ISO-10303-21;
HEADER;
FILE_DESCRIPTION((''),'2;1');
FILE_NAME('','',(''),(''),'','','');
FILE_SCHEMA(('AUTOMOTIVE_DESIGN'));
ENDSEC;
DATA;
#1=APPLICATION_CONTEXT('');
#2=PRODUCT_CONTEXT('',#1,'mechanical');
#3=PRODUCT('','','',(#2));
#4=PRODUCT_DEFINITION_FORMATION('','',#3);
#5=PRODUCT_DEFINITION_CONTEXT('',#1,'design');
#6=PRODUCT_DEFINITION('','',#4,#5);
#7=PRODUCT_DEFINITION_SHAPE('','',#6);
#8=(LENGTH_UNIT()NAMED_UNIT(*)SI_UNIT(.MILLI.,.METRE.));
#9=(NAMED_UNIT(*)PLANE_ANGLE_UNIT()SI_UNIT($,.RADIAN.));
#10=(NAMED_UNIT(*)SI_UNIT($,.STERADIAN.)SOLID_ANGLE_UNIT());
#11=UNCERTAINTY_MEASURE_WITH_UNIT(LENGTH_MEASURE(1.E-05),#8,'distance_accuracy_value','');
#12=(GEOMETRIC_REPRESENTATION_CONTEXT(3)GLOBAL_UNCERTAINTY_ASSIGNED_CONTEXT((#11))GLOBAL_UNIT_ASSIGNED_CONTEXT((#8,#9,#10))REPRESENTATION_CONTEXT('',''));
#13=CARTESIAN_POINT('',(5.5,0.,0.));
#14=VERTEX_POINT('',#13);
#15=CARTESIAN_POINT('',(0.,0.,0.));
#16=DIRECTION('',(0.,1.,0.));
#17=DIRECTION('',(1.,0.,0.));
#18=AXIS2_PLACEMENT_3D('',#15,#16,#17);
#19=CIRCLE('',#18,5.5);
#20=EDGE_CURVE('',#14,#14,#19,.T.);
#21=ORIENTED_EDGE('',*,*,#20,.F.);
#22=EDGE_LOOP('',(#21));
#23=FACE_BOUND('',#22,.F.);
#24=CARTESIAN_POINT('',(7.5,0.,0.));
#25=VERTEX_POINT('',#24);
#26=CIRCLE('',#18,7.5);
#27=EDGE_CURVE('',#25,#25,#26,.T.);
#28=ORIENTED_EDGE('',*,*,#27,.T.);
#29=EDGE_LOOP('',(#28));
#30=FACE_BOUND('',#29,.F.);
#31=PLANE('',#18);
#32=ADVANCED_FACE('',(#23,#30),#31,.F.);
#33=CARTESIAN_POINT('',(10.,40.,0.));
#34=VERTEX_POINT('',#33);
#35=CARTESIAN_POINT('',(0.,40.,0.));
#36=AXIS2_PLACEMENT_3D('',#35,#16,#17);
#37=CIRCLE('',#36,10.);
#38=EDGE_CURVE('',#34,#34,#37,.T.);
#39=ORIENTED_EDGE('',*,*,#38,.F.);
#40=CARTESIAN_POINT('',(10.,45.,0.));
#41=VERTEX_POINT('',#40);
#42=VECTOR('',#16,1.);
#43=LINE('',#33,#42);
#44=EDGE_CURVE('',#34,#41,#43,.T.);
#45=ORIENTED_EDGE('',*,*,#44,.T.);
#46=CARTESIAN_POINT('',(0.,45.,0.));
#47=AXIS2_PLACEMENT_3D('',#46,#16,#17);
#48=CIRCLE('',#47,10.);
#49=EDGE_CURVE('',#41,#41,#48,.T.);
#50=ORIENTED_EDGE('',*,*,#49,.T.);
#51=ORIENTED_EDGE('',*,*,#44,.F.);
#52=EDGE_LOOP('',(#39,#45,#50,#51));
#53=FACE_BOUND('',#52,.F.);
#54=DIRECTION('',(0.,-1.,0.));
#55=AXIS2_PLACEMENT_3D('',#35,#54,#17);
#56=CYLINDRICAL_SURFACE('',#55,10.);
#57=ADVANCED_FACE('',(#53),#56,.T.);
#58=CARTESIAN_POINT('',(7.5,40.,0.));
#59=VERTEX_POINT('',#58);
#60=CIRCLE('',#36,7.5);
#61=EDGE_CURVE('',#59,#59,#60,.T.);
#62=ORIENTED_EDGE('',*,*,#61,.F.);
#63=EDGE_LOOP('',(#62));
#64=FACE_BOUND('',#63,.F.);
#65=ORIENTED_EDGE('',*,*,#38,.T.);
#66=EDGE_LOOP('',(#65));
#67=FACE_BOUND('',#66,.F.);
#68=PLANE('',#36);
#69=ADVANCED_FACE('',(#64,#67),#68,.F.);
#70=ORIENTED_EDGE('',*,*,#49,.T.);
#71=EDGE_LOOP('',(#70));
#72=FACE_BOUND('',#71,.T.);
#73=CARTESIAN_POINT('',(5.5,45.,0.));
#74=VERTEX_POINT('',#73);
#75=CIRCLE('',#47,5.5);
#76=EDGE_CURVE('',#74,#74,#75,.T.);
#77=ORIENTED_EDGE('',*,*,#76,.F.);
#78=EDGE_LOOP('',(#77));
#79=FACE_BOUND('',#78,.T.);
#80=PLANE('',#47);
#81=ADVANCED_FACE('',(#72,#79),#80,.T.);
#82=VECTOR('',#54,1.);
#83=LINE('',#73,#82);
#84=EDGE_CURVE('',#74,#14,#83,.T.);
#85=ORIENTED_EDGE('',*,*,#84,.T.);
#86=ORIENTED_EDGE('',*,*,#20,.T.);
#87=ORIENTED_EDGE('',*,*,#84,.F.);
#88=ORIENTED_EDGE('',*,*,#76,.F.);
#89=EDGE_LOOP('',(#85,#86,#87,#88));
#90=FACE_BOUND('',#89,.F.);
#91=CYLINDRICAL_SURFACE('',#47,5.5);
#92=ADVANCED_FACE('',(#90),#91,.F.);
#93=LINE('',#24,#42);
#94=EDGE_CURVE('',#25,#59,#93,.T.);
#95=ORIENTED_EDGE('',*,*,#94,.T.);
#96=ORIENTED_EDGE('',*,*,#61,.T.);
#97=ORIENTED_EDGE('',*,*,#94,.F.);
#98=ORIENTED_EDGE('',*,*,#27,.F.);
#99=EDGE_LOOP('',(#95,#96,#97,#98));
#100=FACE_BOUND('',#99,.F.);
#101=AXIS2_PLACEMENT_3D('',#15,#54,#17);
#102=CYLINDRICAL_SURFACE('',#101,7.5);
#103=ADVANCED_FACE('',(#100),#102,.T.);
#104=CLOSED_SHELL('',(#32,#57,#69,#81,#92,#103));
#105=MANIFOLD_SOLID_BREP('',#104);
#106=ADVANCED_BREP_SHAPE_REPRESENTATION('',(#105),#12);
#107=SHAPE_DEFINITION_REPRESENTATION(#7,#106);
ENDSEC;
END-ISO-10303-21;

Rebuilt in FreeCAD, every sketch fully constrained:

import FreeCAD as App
import Part
import Sketcher

doc = App.newDocument("Part")
params = doc.addObject("Spreadsheet::Sheet", "Params")
for row, (alias, value) in enumerate([
    ("sketch1_diameter", "15 mm"),
    ("pad1_length", "40 mm"),
    ("sketch2_diameter", "20 mm"),
    ("pad2_length", "5 mm"),
    ("sketch3_diameter", "11 mm"),
], start=1):
    params.set(f"A{row}", alias)
    params.set(f"B{row}", "=" + value)
    params.setAlias(f"B{row}", alias)

body = doc.addObject("PartDesign::Body", "Body")

# Sketch on XZ plane
sketch1 = doc.addObject("Sketcher::SketchObject", "Sketch")
body.addObject(sketch1)
sketch1.AttachmentSupport = (doc.XZ_Plane, [""])
sketch1.MapMode = "FlatFace"
sketch1.addGeometry(Part.Circle(App.Vector(0, 0, 0), App.Vector(0, 0, 1), 7.5), False)
sketch1.addConstraint([
    Sketcher.Constraint("Coincident", 0, 3, -1, 1),
    Sketcher.Constraint("Diameter", 0, 15.0),
])
sketch1.setExpression("Constraints[1]", "Params.sketch1_diameter")
pad1 = doc.addObject("PartDesign::Pad", "Pad")
body.addObject(pad1)
pad1.Profile = sketch1
pad1.setExpression("Length", "Params.pad1_length")
pad1.Reversed = True

# Sketch on XZ plane
sketch2 = doc.addObject("Sketcher::SketchObject", "Sketch001")
body.addObject(sketch2)
sketch2.AttachmentSupport = (doc.XZ_Plane, [""])
sketch2.MapMode = "FlatFace"
sketch2.AttachmentOffset = App.Placement(App.Vector(0, 0, -40), App.Rotation())
sketch2.addGeometry(Part.Circle(App.Vector(0, 0, 0), App.Vector(0, 0, 1), 10), False)
sketch2.addConstraint([
    Sketcher.Constraint("Coincident", 0, 3, -1, 1),
    Sketcher.Constraint("Diameter", 0, 20.0),
])
sketch2.setExpression("Constraints[1]", "Params.sketch2_diameter")
pad2 = doc.addObject("PartDesign::Pad", "Pad001")
body.addObject(pad2)
pad2.Profile = sketch2
pad2.setExpression("Length", "Params.pad2_length")
pad2.Reversed = True

# Sketch on XZ plane
sketch3 = doc.addObject("Sketcher::SketchObject", "Sketch002")
body.addObject(sketch3)
sketch3.AttachmentSupport = (doc.XZ_Plane, [""])
sketch3.MapMode = "FlatFace"
sketch3.AttachmentOffset = App.Placement(App.Vector(0, 0, -45), App.Rotation())
sketch3.addGeometry(Part.Circle(App.Vector(0, 0, 0), App.Vector(0, 0, 1), 5.5), False)
sketch3.addConstraint([
    Sketcher.Constraint("Coincident", 0, 3, -1, 1),
    Sketcher.Constraint("Diameter", 0, 11.0),
])
sketch3.setExpression("Constraints[1]", "Params.sketch3_diameter")
pocket1 = doc.addObject("PartDesign::Pocket", "Pocket")
body.addObject(pocket1)
pocket1.Profile = sketch3
pocket1.Type = "UpToFirst"
pocket1.Reversed = True

doc.recompute()
